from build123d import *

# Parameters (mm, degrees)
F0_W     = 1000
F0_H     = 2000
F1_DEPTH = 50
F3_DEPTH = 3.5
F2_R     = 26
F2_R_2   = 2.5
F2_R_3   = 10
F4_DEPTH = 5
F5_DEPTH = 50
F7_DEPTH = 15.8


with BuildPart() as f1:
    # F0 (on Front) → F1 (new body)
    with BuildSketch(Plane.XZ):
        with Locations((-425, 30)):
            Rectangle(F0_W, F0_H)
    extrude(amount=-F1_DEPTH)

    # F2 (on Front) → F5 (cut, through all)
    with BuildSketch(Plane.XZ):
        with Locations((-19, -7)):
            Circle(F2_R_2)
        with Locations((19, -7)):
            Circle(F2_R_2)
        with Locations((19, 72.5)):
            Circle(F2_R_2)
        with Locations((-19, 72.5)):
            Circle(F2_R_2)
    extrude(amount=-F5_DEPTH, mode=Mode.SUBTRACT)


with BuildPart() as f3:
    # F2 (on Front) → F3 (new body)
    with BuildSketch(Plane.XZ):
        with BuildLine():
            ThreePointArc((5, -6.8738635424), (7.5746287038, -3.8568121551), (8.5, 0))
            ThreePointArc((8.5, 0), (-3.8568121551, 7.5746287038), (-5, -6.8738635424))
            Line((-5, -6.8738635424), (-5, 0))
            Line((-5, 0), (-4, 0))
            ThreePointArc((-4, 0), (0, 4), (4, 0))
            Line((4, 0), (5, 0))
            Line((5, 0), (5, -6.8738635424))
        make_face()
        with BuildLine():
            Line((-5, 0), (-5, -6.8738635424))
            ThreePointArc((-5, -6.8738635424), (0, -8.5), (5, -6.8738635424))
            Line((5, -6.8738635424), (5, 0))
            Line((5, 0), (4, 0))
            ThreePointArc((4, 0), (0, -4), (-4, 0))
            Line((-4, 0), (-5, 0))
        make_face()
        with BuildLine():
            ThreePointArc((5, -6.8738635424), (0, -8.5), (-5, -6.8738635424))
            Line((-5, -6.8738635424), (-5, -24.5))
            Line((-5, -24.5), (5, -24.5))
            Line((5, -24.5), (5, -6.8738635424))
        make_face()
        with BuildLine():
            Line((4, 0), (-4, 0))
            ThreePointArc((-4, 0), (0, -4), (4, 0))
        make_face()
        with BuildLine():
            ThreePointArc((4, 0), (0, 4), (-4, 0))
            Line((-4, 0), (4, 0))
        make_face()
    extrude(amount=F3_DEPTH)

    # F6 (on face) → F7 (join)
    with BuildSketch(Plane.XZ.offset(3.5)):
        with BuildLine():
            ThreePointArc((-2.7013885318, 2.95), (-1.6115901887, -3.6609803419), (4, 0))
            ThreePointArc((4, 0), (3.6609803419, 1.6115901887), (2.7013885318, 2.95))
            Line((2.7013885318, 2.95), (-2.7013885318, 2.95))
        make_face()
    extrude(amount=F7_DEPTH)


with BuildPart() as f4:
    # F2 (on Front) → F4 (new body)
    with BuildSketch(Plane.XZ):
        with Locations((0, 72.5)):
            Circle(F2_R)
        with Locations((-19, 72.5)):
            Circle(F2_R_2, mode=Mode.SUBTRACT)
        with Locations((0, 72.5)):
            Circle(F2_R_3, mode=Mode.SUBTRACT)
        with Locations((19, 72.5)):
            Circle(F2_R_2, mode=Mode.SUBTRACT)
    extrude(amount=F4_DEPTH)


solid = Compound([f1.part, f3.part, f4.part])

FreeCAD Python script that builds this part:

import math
import FreeCAD as App
import Part
import Sketcher

V = App.Vector

doc = App.newDocument("Part")
body = doc.addObject("PartDesign::Body", "Body")

# Sketch on XZ plane
sketch1 = body.newObject("Sketcher::SketchObject", "Sketch")
sketch1.AttachmentSupport = (doc.getObject("XZ_Plane"), [""])
sketch1.MapMode = "FlatFace"
sketch1.addGeometry([
    Part.LineSegment(V(-925, 1030, 0), V(-925, -970, 0)),
    Part.LineSegment(V(-925, -970, 0), V(75, -970, 0)),
    Part.LineSegment(V(75, -970, 0), V(75, 1030, 0)),
    Part.LineSegment(V(75, 1030, 0), V(-925, 1030, 0)),
], False)
sketch1.addConstraint([
    Sketcher.Constraint("Coincident", 0, 2, 1, 1),
    Sketcher.Constraint("Coincident", 1, 2, 2, 1),
    Sketcher.Constraint("Coincident", 2, 2, 3, 1),
    Sketcher.Constraint("Coincident", 3, 2, 0, 1),
    Sketcher.Constraint("Vertical", 0),
    Sketcher.Constraint("Horizontal", 1),
    Sketcher.Constraint("Vertical", 2),
    Sketcher.Constraint("Horizontal", 3),
    Sketcher.Constraint("DistanceX", 1, 1, 1, 2, 1000.0),
    Sketcher.Constraint("DistanceY", 0, 2, 0, 1, 2000.0),
    Sketcher.Constraint("DistanceX", 0, 2, -1, 1, 925.0),
    Sketcher.Constraint("DistanceY", 0, 2, -1, 1, 970.0),
])
pad1 = body.newObject("PartDesign::Pad", "Pad")
pad1.Profile = sketch1
pad1.Length = 50
pad1.Reversed = True

# Sketch on XZ plane
sketch2 = body.newObject("Sketcher::SketchObject", "Sketch001")
sketch2.AttachmentSupport = (doc.getObject("XZ_Plane"), [""])
sketch2.MapMode = "FlatFace"
sketch2.addGeometry([
    Part.Circle(V(-19, -7, 0), V(0, 0, 1), 2.5),
    Part.Circle(V(19, -7, 0), V(0, 0, 1), 2.5),
    Part.Circle(V(19, 72.5, 0), V(0, 0, 1), 2.5),
    Part.Circle(V(-19, 72.5, 0), V(0, 0, 1), 2.5),
], False)
sketch2.addConstraint([
    Sketcher.Constraint("Equal", 0, 1),
    Sketcher.Constraint("Equal", 1, 2),
    Sketcher.Constraint("Equal", 2, 3),
    Sketcher.Constraint("Symmetric", 0, 3, 1, 3, -2),
    Sketcher.Constraint("Symmetric", 2, 3, 3, 3, -2),
    Sketcher.Constraint("Vertical", 1, 3, 2, 3),
    Sketcher.Constraint("Diameter", 0, 5.0),
    Sketcher.Constraint("DistanceX", 0, 3, -1, 1, 19.0),
    Sketcher.Constraint("DistanceY", 0, 3, -1, 1, 7.0),
    Sketcher.Constraint("DistanceY", -1, 1, 2, 3, 72.5),
])
pocket1 = body.newObject("PartDesign::Pocket", "Pocket")
pocket1.Profile = sketch2
pocket1.Type = "ThroughAll"
body2 = doc.addObject("PartDesign::Body", "Body001")

# Sketch on XZ plane
sketch3 = body2.newObject("Sketcher::SketchObject", "Sketch002")
sketch3.AttachmentSupport = (doc.getObject("XZ_Plane001"), [""])
sketch3.MapMode = "FlatFace"
sketch3.addGeometry([
    Part.ArcOfCircle(Part.Circle(V(0, 0, 0), V(0, 0, 1), 8), math.radians(-54), math.radians(0)),  # 0
    Part.ArcOfCircle(Part.Circle(V(0, 0, 0), V(0, 0, 1), 8), math.radians(0), math.radians(234)),  # 1
    Part.LineSegment(V(-5, -7, 0), V(-5, -24, 0)),  # 2
    Part.LineSegment(V(-5, -24, 0), V(5, -24, 0)),  # 3
    Part.LineSegment(V(5, -24, 0), V(5, -7, 0)),  # 4
], False)
sketch3.addConstraint([
    Sketcher.Constraint("Tangent", 0, 2, 1, 1),
    Sketcher.Constraint("Coincident", 1, 2, 2, 1),
    Sketcher.Constraint("Coincident", 2, 2, 3, 1),
    Sketcher.Constraint("Coincident", 3, 2, 4, 1),
    Sketcher.Constraint("Coincident", 4, 2, 0, 1),
    Sketcher.Constraint("Vertical", 2),
    Sketcher.Constraint("Horizontal", 3),
    Sketcher.Constraint("Vertical", 4),
    Sketcher.Constraint("Coincident", 0, 3, -1, 1),
    Sketcher.Constraint("Equal", 0, 1),
    Sketcher.Constraint("PointOnObject", 0, 2, -1),
    Sketcher.Constraint("Horizontal", 1, 2, 4, 2),
    Sketcher.Constraint("Radius", 0, 8.5),
    Sketcher.Constraint("DistanceX", 3, 1, 3, 2, 10.0),
    Sketcher.Constraint("DistanceY", 2, 2, -1, 1, 24.5),
])
pad2 = body2.newObject("PartDesign::Pad", "Pad001")
pad2.Profile = sketch3
pad2.Length = 3.5

# Sketch on XZ plane
sketch4 = body2.newObject("Sketcher::SketchObject", "Sketch003")
sketch4.AttachmentSupport = (doc.getObject("XZ_Plane001"), [""])
sketch4.MapMode = "FlatFace"
sketch4.AttachmentOffset = App.Placement(V(0, 0, 3.5), App.Rotation())
sketch4.addGeometry([
    Part.ArcOfCircle(Part.Circle(V(0, 0, 0), V(0, 0, 1), 4), math.radians(132), math.radians(360)),
    Part.ArcOfCircle(Part.Circle(V(0, 0, 0), V(0, 0, 1), 4), math.radians(0), math.radians(48)),
    Part.LineSegment(V(2.7, 3, 0), V(-2.7, 3, 0)),
], False)
sketch4.addConstraint([
    Sketcher.Constraint("Tangent", 0, 2, 1, 1),
    Sketcher.Constraint("Coincident", 1, 2, 2, 1),
    Sketcher.Constraint("Coincident", 2, 2, 0, 1),
    Sketcher.Constraint("Horizontal", 2),
    Sketcher.Constraint("Coincident", 0, 3, -1, 1),
    Sketcher.Constraint("Equal", 0, 1),
    Sketcher.Constraint("PointOnObject", 0, 2, -1),
    Sketcher.Constraint("Radius", 0, 4.0),
    Sketcher.Constraint("DistanceY", -1, 1, 1, 2, 2.95),
])
pad3 = body2.newObject("PartDesign::Pad", "Pad002")
pad3.Profile = sketch4
pad3.Length = 15.8
body3 = doc.addObject("PartDesign::Body", "Body002")

# Sketch on XZ plane
sketch5 = body3.newObject("Sketcher::SketchObject", "Sketch004")
sketch5.AttachmentSupport = (doc.getObject("XZ_Plane002"), [""])
sketch5.MapMode = "FlatFace"
sketch5.addGeometry([
    Part.Circle(V(0, 72.5, 0), V(0, 0, 1), 26),
    Part.Circle(V(-19, 72.5, 0), V(0, 0, 1), 2.5),
    Part.Circle(V(0, 72.5, 0), V(0, 0, 1), 10),
    Part.Circle(V(19, 72.5, 0), V(0, 0, 1), 2.5),
], False)
sketch5.addConstraint([
    Sketcher.Constraint("Coincident", 2, 3, 0, 3),
    Sketcher.Constraint("Equal", 1, 3),
    Sketcher.Constraint("Symmetric", 1, 3, 3, 3, -2),
    Sketcher.Constraint("PointOnObject", 0, 3, -2),
    Sketcher.Constraint("Horizontal", 0, 3, 1, 3),
    Sketcher.Constraint("Diameter", 0, 52.0),
    Sketcher.Constraint("Diameter", 1, 5.0),
    Sketcher.Constraint("Diameter", 2, 20.0),
    Sketcher.Constraint("DistanceX", 1, 3, -1, 1, 19.0),
    Sketcher.Constraint("DistanceY", -1, 1, 0, 3, 72.5),
])
pad4 = body3.newObject("PartDesign::Pad", "Pad003")
pad4.Profile = sketch5
pad4.Length = 5

doc.recompute()
